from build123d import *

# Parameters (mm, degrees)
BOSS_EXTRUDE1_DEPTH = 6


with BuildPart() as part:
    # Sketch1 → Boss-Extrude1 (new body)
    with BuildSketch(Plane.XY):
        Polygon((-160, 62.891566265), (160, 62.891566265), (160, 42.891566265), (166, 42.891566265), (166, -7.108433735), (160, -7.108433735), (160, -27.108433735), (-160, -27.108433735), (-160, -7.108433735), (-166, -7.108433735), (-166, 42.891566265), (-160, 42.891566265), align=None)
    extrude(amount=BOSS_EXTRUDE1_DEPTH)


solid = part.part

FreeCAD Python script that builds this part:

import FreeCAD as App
import Part
import Sketcher


def add_polygon(sketch, points):
    """Adds a closed chain of lines whose ends are joined by coincident constraints."""
    first, n = sketch.GeometryCount, len(points)
    for a, b in zip(points, points[1:] + points[:1]):
        sketch.addGeometry(Part.LineSegment(App.Vector(*a, 0), App.Vector(*b, 0)), False)
    for i in range(n):
        sketch.addConstraint(Sketcher.Constraint("Coincident", first + i, 2, first + (i + 1) % n, 1))

doc = App.newDocument("Part")
body = doc.addObject("PartDesign::Body", "Body")

# Sketch on XY plane
sketch1 = body.newObject("Sketcher::SketchObject", "Sketch")
sketch1.AttachmentSupport = (doc.getObject("XY_Plane"), [""])
sketch1.MapMode = "FlatFace"
add_polygon(sketch1, [(160, 62.891566), (-160, 62.891566), (-160, 42.891566), (-166, 42.891566), (-166, -7.108434), (-160, -7.108434), (-160, -27.108434), (160, -27.108434), (160, -7.108434), (166, -7.108434), (166, 42.891566), (160, 42.891566)])  # lines 0-11
sketch1.addConstraint([
    Sketcher.Constraint("Horizontal", 0),
    Sketcher.Constraint("Vertical", 1),
    Sketcher.Constraint("Horizontal", 2),
    Sketcher.Constraint("Vertical", 3),
    Sketcher.Constraint("Horizontal", 4),
    Sketcher.Constraint("Vertical", 5),
    Sketcher.Constraint("Horizontal", 6),
    Sketcher.Constraint("Vertical", 7),
    Sketcher.Constraint("Horizontal", 8),
    Sketcher.Constraint("Vertical", 9),
    Sketcher.Constraint("Horizontal", 10),
    Sketcher.Constraint("Vertical", 11),
    Sketcher.Constraint("Symmetric", 4, 2, 7, 2, -2),
    Sketcher.Constraint("Symmetric", 2, 2, 9, 2, -2),
    Sketcher.Constraint("Vertical", 1, 2, 4, 2),
    Sketcher.Constraint("Vertical", 7, 2, 10, 2),
    Sketcher.Constraint("Equal", 1, 5),
    Sketcher.Constraint("DistanceX", 0, 2, 0, 1, 320.0),
    Sketcher.Constraint("DistanceX", 2, 2, 2, 1, 6.0),
    Sketcher.Constraint("DistanceY", 1, 2, 1, 1, 20.0),
    Sketcher.Constraint("DistanceY", 3, 2, 3, 1, 50.0),
    Sketcher.Constraint("DistanceY", -1, 1, 0, 2, 62.891566),
])
pad1 = body.newObject("PartDesign::Pad", "Pad")
pad1.Profile = sketch1
pad1.Length = 6

doc.recompute()
